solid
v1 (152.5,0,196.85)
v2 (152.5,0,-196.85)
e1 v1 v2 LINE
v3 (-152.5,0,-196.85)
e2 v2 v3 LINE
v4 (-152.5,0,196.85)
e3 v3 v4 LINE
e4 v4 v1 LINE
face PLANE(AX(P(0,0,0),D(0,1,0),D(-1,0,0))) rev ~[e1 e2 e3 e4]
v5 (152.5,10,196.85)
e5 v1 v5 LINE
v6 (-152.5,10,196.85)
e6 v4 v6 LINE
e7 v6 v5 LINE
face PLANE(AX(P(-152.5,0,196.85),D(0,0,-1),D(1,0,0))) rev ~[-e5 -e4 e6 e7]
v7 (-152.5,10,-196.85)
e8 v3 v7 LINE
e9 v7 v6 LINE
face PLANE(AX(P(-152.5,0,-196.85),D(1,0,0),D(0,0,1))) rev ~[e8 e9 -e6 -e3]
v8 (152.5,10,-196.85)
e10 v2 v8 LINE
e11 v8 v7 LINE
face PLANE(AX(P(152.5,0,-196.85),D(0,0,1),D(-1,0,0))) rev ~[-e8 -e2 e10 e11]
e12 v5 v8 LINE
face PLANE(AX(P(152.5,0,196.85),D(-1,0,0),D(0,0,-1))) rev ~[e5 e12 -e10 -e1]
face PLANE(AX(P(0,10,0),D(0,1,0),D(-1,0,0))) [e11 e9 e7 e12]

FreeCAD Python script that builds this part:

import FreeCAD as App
import Part
import Sketcher

V = App.Vector
Q = App.Units.Quantity


def add_polygon(sketch, points):
    """Adds a closed chain of lines whose ends are joined by coincident constraints."""
    first, n = sketch.GeometryCount, len(points)
    for a, b in zip(points, points[1:] + points[:1]):
        sketch.addGeometry(Part.LineSegment(App.Vector(*a, 0), App.Vector(*b, 0)), False)
    for i in range(n):
        sketch.addConstraint(Sketcher.Constraint("Coincident", first + i, 2, first + (i + 1) % n, 1))

doc = App.newDocument("Part")
body = doc.addObject("PartDesign::Body", "Body")

# Sketch on XZ plane
sketch1 = body.newObject("Sketcher::SketchObject", "Sketch")
sketch1.AttachmentSupport = (doc.getObject("XZ_Plane"), [""])
sketch1.MapMode = "FlatFace"
add_polygon(sketch1, [(152, 197), (152, -197), (-152, -197), (-152, 197)])  # lines 0-3
sketch1.addConstraint(Sketcher.Constraint("Vertical", 0))
sketch1.addConstraint(Sketcher.Constraint("Horizontal", 1))
sketch1.addConstraint(Sketcher.Constraint("Vertical", 2))
sketch1.addConstraint(Sketcher.Constraint("Horizontal", 3))
sketch1.addConstraint(Sketcher.Constraint("Symmetric", 0, 2, 2, 2, -1, 1))
sketch1.addConstraint(Sketcher.Constraint("DistanceX", 1, 2, 1, 1, Q("305 mm")))
sketch1.addConstraint(Sketcher.Constraint("DistanceY", 0, 2, 0, 1, Q("393.7 mm")))
pad1 = body.newObject("PartDesign::Pad", "Pad")
pad1.Profile = sketch1
pad1.Length = 10
pad1.Reversed = True

doc.recompute()
